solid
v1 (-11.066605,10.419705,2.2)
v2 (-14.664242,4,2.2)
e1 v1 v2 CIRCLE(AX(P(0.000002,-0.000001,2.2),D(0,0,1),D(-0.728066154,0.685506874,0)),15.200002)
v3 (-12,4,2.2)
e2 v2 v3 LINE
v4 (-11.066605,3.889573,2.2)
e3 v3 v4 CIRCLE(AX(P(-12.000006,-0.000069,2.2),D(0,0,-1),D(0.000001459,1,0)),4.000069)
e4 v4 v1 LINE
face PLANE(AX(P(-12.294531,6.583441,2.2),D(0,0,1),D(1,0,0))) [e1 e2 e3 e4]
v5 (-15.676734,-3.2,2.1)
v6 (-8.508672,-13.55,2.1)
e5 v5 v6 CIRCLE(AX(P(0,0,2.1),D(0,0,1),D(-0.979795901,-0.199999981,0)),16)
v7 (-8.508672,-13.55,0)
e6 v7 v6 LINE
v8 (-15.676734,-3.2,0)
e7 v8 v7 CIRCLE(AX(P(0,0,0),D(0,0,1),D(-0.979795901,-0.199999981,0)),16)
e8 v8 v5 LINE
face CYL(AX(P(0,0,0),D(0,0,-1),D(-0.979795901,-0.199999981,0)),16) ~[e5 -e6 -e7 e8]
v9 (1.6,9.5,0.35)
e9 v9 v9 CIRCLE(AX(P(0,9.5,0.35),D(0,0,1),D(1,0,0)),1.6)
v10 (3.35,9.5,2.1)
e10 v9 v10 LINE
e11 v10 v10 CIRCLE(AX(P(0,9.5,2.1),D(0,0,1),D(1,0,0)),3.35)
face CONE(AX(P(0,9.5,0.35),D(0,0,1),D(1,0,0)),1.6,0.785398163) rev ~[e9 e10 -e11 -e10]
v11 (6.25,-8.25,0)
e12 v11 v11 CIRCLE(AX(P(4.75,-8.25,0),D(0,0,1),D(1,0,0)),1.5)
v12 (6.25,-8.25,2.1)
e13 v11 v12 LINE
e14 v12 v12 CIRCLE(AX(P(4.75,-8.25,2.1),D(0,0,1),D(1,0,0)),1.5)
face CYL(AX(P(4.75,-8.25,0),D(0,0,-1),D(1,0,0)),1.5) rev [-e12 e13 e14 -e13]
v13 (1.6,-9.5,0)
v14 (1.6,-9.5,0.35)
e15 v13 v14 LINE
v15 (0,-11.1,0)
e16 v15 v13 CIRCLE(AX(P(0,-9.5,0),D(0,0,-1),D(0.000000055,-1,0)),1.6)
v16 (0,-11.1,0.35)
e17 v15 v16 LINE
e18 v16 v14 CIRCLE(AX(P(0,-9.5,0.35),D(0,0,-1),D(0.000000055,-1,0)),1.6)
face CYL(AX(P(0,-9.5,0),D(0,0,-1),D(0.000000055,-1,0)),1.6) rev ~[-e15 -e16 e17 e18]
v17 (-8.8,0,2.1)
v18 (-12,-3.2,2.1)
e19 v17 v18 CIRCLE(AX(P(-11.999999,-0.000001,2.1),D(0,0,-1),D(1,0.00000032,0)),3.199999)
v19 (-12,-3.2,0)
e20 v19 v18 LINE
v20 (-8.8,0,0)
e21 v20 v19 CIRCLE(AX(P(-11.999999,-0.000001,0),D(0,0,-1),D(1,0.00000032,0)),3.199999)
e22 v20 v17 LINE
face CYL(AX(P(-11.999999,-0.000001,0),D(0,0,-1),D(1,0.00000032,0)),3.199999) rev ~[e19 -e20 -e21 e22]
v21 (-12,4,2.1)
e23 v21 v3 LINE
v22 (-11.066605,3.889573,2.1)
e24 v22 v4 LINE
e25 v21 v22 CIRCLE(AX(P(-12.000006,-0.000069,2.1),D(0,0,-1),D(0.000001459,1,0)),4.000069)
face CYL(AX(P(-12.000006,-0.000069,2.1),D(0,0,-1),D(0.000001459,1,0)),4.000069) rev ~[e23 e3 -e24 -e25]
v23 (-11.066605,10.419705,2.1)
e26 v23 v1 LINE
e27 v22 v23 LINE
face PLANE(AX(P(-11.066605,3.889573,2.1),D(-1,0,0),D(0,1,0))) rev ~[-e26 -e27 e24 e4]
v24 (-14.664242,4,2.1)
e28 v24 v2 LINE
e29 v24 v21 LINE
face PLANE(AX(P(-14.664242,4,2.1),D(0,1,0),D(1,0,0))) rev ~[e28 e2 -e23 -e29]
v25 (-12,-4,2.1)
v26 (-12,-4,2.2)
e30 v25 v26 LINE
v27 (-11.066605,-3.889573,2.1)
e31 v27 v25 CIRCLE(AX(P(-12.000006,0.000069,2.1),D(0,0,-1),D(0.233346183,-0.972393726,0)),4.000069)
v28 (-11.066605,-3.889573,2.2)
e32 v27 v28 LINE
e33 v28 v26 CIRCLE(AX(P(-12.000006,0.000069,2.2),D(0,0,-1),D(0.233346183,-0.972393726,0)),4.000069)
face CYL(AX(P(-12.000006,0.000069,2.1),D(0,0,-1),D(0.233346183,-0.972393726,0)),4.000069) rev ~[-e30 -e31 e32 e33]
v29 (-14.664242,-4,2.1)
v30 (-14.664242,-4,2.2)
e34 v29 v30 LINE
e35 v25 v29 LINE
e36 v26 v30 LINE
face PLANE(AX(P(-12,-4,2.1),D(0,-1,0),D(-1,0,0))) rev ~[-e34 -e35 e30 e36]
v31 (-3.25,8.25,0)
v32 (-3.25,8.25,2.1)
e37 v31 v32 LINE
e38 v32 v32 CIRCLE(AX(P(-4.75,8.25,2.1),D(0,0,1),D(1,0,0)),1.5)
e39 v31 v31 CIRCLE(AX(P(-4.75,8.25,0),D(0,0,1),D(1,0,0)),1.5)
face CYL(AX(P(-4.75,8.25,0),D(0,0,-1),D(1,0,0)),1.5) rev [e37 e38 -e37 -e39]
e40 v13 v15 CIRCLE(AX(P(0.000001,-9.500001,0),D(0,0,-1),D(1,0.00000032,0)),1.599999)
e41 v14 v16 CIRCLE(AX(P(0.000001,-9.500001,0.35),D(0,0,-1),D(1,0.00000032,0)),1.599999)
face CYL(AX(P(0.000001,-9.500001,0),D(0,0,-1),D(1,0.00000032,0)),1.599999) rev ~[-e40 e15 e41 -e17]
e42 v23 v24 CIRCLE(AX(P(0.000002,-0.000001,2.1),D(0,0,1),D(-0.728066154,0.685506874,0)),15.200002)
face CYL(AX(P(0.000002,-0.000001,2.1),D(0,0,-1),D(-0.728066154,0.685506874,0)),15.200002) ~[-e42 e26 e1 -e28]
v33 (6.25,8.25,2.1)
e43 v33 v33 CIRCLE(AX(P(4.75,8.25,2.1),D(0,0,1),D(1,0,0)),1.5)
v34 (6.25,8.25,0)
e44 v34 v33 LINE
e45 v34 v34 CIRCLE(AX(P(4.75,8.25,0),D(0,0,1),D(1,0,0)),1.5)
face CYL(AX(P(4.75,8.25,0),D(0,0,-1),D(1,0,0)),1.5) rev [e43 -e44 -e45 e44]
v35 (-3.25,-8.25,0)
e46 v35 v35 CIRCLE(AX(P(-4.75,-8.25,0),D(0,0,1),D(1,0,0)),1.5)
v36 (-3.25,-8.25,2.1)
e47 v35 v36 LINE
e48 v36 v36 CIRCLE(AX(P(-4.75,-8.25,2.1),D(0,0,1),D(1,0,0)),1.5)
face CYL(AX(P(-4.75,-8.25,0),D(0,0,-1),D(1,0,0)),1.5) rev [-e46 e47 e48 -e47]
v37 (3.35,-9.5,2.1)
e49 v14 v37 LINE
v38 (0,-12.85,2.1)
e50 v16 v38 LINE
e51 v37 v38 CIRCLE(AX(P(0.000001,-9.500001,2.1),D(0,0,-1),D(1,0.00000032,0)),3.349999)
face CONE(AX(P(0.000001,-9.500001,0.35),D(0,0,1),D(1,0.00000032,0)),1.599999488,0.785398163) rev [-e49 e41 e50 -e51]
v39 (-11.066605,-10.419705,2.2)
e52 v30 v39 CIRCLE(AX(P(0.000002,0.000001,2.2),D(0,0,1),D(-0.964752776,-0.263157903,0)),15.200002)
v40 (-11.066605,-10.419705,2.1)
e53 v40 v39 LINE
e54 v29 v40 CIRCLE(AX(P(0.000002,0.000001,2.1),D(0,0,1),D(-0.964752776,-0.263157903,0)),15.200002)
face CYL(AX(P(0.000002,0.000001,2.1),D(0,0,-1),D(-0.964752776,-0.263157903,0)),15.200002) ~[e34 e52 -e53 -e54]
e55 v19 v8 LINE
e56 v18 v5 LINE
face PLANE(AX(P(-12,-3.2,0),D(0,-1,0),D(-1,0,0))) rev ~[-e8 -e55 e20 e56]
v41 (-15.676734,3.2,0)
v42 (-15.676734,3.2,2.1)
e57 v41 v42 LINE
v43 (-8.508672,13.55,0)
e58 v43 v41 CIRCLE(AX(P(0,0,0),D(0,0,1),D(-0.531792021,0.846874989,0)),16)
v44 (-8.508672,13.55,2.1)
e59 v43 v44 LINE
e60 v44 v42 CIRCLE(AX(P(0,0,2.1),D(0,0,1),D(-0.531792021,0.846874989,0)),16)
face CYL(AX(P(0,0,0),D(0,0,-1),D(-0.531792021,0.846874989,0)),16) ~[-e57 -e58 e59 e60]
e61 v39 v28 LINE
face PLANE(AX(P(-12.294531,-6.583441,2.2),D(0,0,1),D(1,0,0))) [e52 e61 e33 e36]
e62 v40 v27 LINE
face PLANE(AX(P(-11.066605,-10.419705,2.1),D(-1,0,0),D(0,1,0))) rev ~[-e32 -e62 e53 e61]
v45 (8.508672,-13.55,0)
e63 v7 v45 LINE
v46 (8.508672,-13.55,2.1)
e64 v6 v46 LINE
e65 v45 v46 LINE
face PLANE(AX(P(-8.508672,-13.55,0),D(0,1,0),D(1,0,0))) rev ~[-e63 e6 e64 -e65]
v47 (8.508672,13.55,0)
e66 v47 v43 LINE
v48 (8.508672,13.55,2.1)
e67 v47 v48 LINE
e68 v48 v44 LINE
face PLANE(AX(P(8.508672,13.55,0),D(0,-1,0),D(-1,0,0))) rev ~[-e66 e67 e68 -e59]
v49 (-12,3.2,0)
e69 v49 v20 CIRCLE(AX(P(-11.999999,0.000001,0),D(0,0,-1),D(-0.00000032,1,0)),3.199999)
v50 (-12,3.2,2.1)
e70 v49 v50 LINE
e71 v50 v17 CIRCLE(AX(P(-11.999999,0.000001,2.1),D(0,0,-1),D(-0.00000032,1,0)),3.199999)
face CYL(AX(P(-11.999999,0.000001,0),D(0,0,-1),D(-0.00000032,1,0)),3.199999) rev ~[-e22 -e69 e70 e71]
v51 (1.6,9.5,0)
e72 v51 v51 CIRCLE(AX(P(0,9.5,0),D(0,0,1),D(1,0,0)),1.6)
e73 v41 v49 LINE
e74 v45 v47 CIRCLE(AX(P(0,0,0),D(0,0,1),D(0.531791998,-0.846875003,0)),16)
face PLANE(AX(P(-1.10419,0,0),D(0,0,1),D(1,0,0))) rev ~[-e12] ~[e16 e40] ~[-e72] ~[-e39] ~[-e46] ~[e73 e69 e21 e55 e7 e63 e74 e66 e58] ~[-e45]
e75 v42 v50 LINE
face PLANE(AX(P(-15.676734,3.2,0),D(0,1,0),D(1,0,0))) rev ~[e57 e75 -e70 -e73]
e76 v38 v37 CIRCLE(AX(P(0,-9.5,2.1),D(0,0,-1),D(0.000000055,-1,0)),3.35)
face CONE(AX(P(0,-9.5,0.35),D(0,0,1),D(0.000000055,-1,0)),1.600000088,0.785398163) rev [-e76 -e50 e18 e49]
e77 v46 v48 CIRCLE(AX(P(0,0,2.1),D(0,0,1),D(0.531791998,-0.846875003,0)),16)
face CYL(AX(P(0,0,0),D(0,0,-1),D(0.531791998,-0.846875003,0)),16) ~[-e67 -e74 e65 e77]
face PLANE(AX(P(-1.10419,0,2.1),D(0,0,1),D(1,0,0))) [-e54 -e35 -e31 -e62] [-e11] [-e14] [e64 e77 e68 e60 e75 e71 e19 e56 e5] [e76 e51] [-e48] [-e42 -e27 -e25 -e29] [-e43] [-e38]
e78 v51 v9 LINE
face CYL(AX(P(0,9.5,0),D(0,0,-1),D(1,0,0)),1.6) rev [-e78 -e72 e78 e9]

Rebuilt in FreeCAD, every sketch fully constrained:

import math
import FreeCAD as App
import Part
import Sketcher

V = App.Vector


def edges_at(feature, points):
    """Names of the edges that pass closest to the given points."""
    edges = feature.Shape.Edges
    near = lambda p: min(range(len(edges)), key=lambda i: edges[i].distToShape(Part.Vertex(*p))[0])
    return sorted({f"Edge{near(p) + 1}" for p in points})

doc = App.newDocument("Part")
body = doc.addObject("PartDesign::Body", "Body")

# Sketch on XY plane
sketch1 = doc.addObject("Sketcher::SketchObject", "Sketch")
body.addObject(sketch1)
sketch1.AttachmentSupport = (doc.XY_Plane, [""])
sketch1.MapMode = "FlatFace"
sketch1.addGeometry([
    Part.LineSegment(V(8.5, 13.6, 0), V(-8.5, 13.6, 0)),  # 0
    Part.ArcOfCircle(Part.Circle(V(0, 0, 0), V(0, 0, 1), 16), math.radians(122), math.radians(168)),  # 1
    Part.LineSegment(V(-15.7, 3.2, 0), V(-12, 3.2, 0)),  # 2
    Part.ArcOfCircle(Part.Circle(V(-12, 0, 0), V(0, 0, 1), 3.2), math.radians(0), math.radians(90)),  # 3
    Part.ArcOfCircle(Part.Circle(V(-12, 0, 0), V(0, 0, 1), 3.2), math.radians(-90), math.radians(0)),  # 4
    Part.LineSegment(V(-12, -3.2, 0), V(-15.7, -3.2, 0)),  # 5
    Part.ArcOfCircle(Part.Circle(V(0, 0, 0), V(0, 0, 1), 16), math.radians(-168), math.radians(-122)),  # 6
    Part.LineSegment(V(-8.5, -13.6, 0), V(8.5, -13.6, 0)),  # 7
    Part.ArcOfCircle(Part.Circle(V(0, 0, 0), V(0, 0, 1), 16), math.radians(-58), math.radians(58)),  # 8
    Part.Circle(V(-4.8, -8.2, 0), V(0, 0, 1), 1.5),  # 9
    Part.ArcOfCircle(Part.Circle(V(0, -9.5, 0), V(0, 0, 1), 1.6), math.radians(0), math.radians(270)),  # 10
    Part.ArcOfCircle(Part.Circle(V(0, -9.5, 0), V(0, 0, 1), 1.6), math.radians(-90), math.radians(0)),  # 11
    Part.Circle(V(4.8, -8.2, 0), V(0, 0, 1), 1.5),  # 12
    Part.Circle(V(-4.8, 8.2, 0), V(0, 0, 1), 1.5),  # 13
    Part.Circle(V(0, 9.5, 0), V(0, 0, 1), 1.6),  # 14
    Part.Circle(V(4.8, 8.2, 0), V(0, 0, 1), 1.5),  # 15
], False)
sketch1.addConstraint([
    Sketcher.Constraint("Coincident", 0, 2, 1, 1),
    Sketcher.Constraint("Coincident", 1, 2, 2, 1),
    Sketcher.Constraint("Tangent", 2, 2, 3, 2),
    Sketcher.Constraint("Tangent", 3, 1, 4, 2),
    Sketcher.Constraint("Tangent", 4, 1, 5, 1),
    Sketcher.Constraint("Coincident", 5, 2, 6, 1),
    Sketcher.Constraint("Coincident", 6, 2, 7, 1),
    Sketcher.Constraint("Coincident", 7, 2, 8, 1),
    Sketcher.Constraint("Coincident", 8, 2, 0, 1),
    Sketcher.Constraint("Tangent", 10, 1, 11, 2),
    Sketcher.Constraint("Coincident", 11, 1, 10, 2),
    Sketcher.Constraint("Horizontal", 0),
    Sketcher.Constraint("Horizontal", 2),
    Sketcher.Constraint("Horizontal", 5),
    Sketcher.Constraint("Horizontal", 7),
    Sketcher.Constraint("Coincident", 1, 3, -1, 1),
    Sketcher.Constraint("Coincident", 6, 3, -1, 1),
    Sketcher.Constraint("Coincident", 8, 3, -1, 1),
    Sketcher.Constraint("Equal", 3, 4),
    Sketcher.Constraint("Equal", 1, 6),
    Sketcher.Constraint("Equal", 6, 8),
    Sketcher.Constraint("Equal", 9, 12),
    Sketcher.Constraint("Equal", 12, 13),
    Sketcher.Constraint("Equal", 11, 14),
    Sketcher.Constraint("Equal", 13, 15),
    Sketcher.Constraint("Symmetric", 12, 3, 13, 3, -1, 1),
    Sketcher.Constraint("Symmetric", 10, 3, 14, 3, -1, 1),
    Sketcher.Constraint("Symmetric", 9, 3, 15, 3, -1, 1),
    Sketcher.Constraint("Symmetric", 9, 3, 12, 3, -2),
    Sketcher.Constraint("PointOnObject", 3, 3, -1),
    Sketcher.Constraint("PointOnObject", 10, 3, -2),
    Sketcher.Constraint("PointOnObject", 3, 1, -1),
    Sketcher.Constraint("PointOnObject", 11, 1, -2),
    Sketcher.Constraint("Horizontal", 11, 3, 10, 1),
    Sketcher.Constraint("Vertical", 0, 2, 6, 2),
    Sketcher.Constraint("Diameter", 9, 3.0),
    Sketcher.Constraint("Radius", 1, 16.0),
    Sketcher.Constraint("Diameter", 14, 3.2),
    Sketcher.Constraint("Radius", 3, 3.199999),
    Sketcher.Constraint("DistanceX", 3, 3, -1, 1, 11.999999),
    Sketcher.Constraint("DistanceY", 10, 3, -1, 1, 9.5),
    Sketcher.Constraint("DistanceX", 9, 3, 12, 3, 9.5),
    Sketcher.Constraint("DistanceY", 13, 3, 0, 2, 5.3),
    Sketcher.Constraint("DistanceY", 9, 3, -1, 1, 8.25),
])
pad1 = doc.addObject("PartDesign::Pad", "Pad")
body.addObject(pad1)
pad1.Profile = sketch1
pad1.Length = 2.1
doc.recompute()

chamfer = doc.addObject("PartDesign::Chamfer", "Chamfer")
body.addObject(chamfer)
chamfer.Base = (pad1, edges_at(pad1, [(-1.131, -8.369, 2.1), (-1.6, 9.5, 2.1)]))
chamfer.Size = 1.75

# Sketch on XY plane
sketch2 = doc.addObject("Sketcher::SketchObject", "Sketch001")
body.addObject(sketch2)
sketch2.AttachmentSupport = (doc.XY_Plane, [""])
sketch2.MapMode = "FlatFace"
sketch2.AttachmentOffset = App.Placement(V(0, 0, 2.1), App.Rotation())
sketch2.addGeometry([
    Part.ArcOfCircle(Part.Circle(V(-12.000006, -0.000069, 0), V(0, 0, 1), 4.000069), math.radians(76.505844), math.radians(89.999916)),  # 0
    Part.LineSegment(V(-11.066605, 3.889573, 0), V(-11.066605, 10.419705, 0)),  # 1
    Part.ArcOfCircle(Part.Circle(V(0.000002, -0.000001, 0), V(0, 0, 1), 15.200002), math.radians(136.724517), math.radians(164.742476)),  # 2
    Part.LineSegment(V(-14.664242, 4, 0), V(-12, 4, 0)),  # 3
    Part.LineSegment(V(-12, -4, 0), V(-14.664242, -4, 0)),  # 4
    Part.ArcOfCircle(Part.Circle(V(0.000002, 0.000001, 0), V(0, 0, 1), 15.200002), math.radians(-164.742476), math.radians(-136.724517)),  # 5
    Part.LineSegment(V(-11.066605, -10.419705, 0), V(-11.066605, -3.889573, 0)),  # 6
    Part.ArcOfCircle(Part.Circle(V(-12.000006, 0.000069, 0), V(0, 0, 1), 4.000069), math.radians(-89.999916), math.radians(-76.505844)),  # 7
], False)
sketch2.addConstraint([
    Sketcher.Constraint("Coincident", 0, 1, 1, 1),
    Sketcher.Constraint("Coincident", 1, 2, 2, 1),
    Sketcher.Constraint("Coincident", 2, 2, 3, 1),
    Sketcher.Constraint("Tangent", 3, 2, 0, 2),
    Sketcher.Constraint("Coincident", 4, 2, 5, 1),
    Sketcher.Constraint("Coincident", 5, 2, 6, 1),
    Sketcher.Constraint("Coincident", 6, 2, 7, 2),
    Sketcher.Constraint("Tangent", 7, 1, 4, 1),
    Sketcher.Constraint("Vertical", 1),
    Sketcher.Constraint("Horizontal", 3),
    Sketcher.Constraint("Horizontal", 4),
    Sketcher.Constraint("Vertical", 6),
    Sketcher.Constraint("Coincident", 2, 3, -1, 1),
    Sketcher.Constraint("Coincident", 5, 3, -1, 1),
    Sketcher.Constraint("Equal", 2, 5),
    Sketcher.Constraint("Equal", 0, 7),
    Sketcher.Constraint("Symmetric", 0, 3, 7, 3, -1),
    Sketcher.Constraint("Vertical", 1, 2, 5, 2),
    Sketcher.Constraint("Radius", 2, 15.200002),
    Sketcher.Constraint("DistanceY", -1, 1, 2, 2, 4.0),
    Sketcher.Constraint("DistanceX", 3, 2, -1, 1, 12.0),
    Sketcher.Constraint("Radius", 0, 4.000069),
    Sketcher.Constraint("DistanceX", 7, 3, 0, 1, 0.933401),
])
pad2 = doc.addObject("PartDesign::Pad", "Pad001")
body.addObject(pad2)
pad2.Profile = sketch2
pad2.Length = 0.1

doc.recompute()
